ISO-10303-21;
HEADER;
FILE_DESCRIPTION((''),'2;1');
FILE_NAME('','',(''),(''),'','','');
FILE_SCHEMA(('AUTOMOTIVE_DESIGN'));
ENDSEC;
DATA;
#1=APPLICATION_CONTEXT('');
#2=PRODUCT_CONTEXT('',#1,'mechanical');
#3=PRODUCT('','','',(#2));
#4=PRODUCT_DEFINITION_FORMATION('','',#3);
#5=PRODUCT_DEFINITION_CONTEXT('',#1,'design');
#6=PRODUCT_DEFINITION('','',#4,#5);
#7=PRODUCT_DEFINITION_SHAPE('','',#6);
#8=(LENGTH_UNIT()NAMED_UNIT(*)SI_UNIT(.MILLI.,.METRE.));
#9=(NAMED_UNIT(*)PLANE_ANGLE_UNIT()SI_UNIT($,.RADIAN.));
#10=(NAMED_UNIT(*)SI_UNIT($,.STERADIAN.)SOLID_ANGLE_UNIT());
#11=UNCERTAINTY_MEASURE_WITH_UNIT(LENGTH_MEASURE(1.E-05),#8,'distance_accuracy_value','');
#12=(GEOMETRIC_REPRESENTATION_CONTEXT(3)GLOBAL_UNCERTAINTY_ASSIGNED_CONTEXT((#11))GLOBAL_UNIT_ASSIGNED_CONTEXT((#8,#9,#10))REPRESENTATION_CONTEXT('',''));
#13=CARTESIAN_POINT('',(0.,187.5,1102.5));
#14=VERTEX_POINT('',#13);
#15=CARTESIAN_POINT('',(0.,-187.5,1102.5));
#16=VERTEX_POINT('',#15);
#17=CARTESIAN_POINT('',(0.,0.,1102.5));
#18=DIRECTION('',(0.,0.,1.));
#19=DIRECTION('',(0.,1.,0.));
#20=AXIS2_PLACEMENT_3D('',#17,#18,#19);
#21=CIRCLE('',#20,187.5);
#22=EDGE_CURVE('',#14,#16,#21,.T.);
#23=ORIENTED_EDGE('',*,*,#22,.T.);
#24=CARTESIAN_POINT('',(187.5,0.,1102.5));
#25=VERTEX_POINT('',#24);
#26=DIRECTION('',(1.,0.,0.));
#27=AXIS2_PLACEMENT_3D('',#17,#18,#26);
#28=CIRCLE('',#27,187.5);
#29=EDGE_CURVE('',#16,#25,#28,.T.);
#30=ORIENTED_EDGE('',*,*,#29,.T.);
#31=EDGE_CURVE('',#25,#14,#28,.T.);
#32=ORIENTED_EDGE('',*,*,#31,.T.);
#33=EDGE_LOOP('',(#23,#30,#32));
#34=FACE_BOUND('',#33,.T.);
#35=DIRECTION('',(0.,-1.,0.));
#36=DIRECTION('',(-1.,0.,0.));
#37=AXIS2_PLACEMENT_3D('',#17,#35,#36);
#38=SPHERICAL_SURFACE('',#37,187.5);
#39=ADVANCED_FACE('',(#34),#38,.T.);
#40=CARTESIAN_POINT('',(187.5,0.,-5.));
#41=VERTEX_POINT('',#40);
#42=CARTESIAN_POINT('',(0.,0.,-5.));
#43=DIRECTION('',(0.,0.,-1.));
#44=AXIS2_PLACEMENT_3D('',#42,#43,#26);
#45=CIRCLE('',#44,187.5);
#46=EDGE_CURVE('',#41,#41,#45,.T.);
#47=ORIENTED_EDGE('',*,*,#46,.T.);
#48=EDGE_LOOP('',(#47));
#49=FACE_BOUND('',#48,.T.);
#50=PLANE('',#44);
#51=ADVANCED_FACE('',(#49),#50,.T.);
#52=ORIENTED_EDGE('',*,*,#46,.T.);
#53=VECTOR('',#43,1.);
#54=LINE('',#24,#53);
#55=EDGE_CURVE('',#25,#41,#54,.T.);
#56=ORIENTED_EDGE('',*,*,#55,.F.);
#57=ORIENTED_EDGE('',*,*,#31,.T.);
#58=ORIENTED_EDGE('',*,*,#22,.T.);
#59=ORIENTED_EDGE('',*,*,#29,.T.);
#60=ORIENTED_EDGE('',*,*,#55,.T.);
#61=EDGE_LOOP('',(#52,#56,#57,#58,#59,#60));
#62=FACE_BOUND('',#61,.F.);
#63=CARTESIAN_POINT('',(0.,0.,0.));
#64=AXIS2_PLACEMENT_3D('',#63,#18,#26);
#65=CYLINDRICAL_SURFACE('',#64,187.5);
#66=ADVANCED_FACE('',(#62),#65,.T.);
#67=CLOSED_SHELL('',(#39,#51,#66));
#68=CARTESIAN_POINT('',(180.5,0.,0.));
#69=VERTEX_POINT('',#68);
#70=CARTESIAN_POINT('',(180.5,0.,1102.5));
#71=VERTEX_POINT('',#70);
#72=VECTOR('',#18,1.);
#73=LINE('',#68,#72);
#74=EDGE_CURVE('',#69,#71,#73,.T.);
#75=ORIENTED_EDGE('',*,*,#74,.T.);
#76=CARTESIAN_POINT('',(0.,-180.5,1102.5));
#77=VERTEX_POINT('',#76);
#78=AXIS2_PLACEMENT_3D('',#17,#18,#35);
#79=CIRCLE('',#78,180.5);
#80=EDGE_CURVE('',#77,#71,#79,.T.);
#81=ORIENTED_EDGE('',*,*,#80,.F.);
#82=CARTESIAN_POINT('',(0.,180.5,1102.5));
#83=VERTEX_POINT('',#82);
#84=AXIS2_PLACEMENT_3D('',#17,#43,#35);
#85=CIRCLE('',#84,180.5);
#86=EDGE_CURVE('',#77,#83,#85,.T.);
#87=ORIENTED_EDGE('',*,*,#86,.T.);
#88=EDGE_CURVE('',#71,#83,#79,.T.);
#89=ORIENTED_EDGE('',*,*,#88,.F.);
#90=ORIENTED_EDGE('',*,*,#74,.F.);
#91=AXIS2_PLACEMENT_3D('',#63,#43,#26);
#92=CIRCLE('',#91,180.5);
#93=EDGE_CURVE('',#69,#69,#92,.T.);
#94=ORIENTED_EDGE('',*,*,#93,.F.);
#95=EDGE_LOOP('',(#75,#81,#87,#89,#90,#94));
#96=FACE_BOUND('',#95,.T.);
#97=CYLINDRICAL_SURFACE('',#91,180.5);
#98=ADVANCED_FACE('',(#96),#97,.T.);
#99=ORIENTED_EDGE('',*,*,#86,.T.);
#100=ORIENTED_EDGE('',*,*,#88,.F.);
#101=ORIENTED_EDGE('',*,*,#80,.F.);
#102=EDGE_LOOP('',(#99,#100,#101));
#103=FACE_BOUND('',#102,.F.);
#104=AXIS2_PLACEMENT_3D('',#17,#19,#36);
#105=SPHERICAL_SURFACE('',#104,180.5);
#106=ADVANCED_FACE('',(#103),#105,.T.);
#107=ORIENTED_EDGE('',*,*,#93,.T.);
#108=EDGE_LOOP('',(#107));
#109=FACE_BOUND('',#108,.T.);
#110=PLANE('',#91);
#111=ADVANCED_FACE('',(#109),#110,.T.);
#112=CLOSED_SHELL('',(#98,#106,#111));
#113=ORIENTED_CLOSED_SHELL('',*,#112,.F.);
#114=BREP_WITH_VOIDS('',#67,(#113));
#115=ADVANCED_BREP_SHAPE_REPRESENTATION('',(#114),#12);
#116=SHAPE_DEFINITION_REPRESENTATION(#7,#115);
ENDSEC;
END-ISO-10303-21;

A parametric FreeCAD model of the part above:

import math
import FreeCAD as App
import Part
import Sketcher
from FreeCAD import Vector
Q = App.Units.Quantity

doc = App.newDocument("Part")
body = doc.addObject("PartDesign::Body", "Body")

sketch1 = body.newObject("Sketcher::SketchObject", "Sketch")
sketch1.AttachmentSupport = (doc.getObject("XY_Plane"), [""])
sketch1.MapMode = "FlatFace"
sketch1.addGeometry(Part.Circle(Vector(0, 0, 0), Vector(0, 0, 1), 188), False)
sketch1.addConstraint(Sketcher.Constraint("Coincident", 0, 3, -1, 1))
sketch1.addConstraint(Sketcher.Constraint("Diameter", 0, Q("375 mm")))
pad1 = body.newObject("PartDesign::Pad", "Pad")
pad1.Profile = sketch1
pad1.Length = 1102.5

sketch2 = body.newObject("Sketcher::SketchObject", "Sketch001")
sketch2.AttachmentSupport = (doc.getObject("XY_Plane"), [""])
sketch2.MapMode = "FlatFace"
sketch2.AttachmentOffset = App.Placement(Vector(0, 0, 1102.5), App.Rotation())
sketch2.addGeometry(Part.LineSegment(Vector(0, 180, 0), Vector(0, 188, 0)), False)
sketch2.addGeometry(Part.ArcOfCircle(Part.Circle(Vector(0, 0, 0), Vector(0, 0, 1), 188), math.radians(90), math.radians(270)), False)
sketch2.addGeometry(Part.LineSegment(Vector(0, -188, 0), Vector(0, -180, 0)), False)
sketch2.addGeometry(Part.ArcOfCircle(Part.Circle(Vector(0, 0, 0), Vector(0, 0, 1), 180), math.radians(90), math.radians(270)), False)
sketch2.addConstraint(Sketcher.Constraint("Coincident", 0, 2, 1, 1))
sketch2.addConstraint(Sketcher.Constraint("Coincident", 1, 2, 2, 1))
sketch2.addConstraint(Sketcher.Constraint("Coincident", 2, 2, 3, 2))
sketch2.addConstraint(Sketcher.Constraint("Coincident", 3, 1, 0, 1))
sketch2.addConstraint(Sketcher.Constraint("Vertical", 0))
sketch2.addConstraint(Sketcher.Constraint("Vertical", 2))
sketch2.addConstraint(Sketcher.Constraint("Coincident", 1, 3, -1, 1))
sketch2.addConstraint(Sketcher.Constraint("Coincident", 3, 3, -1, 1))
sketch2.addConstraint(Sketcher.Constraint("PointOnObject", 0, 2, -2))
sketch2.addConstraint(Sketcher.Constraint("PointOnObject", 1, 2, -2))
sketch2.addConstraint(Sketcher.Constraint("Radius", 1, Q("187.5 mm")))
sketch2.addConstraint(Sketcher.Constraint("Radius", 3, Q("180.5 mm")))
revolution = body.newObject("PartDesign::Revolution", "Revolution")
revolution.Profile = sketch2
revolution.ReferenceAxis = (sketch2, ["V_Axis"])
revolution.Angle = 360

sketch3 = body.newObject("Sketcher::SketchObject", "Sketch002")
sketch3.AttachmentSupport = (doc.getObject("XY_Plane"), [""])
sketch3.MapMode = "FlatFace"
sketch3.addGeometry(Part.Circle(Vector(0, 0, 0), Vector(0, 0, 1), 180), False)
sketch3.addConstraint(Sketcher.Constraint("Coincident", 0, 3, -1, 1))
sketch3.addConstraint(Sketcher.Constraint("Diameter", 0, Q("361 mm")))
pocket1 = body.newObject("PartDesign::Pocket", "Pocket")
pocket1.Profile = sketch3
pocket1.Length = 1102.5
pocket1.Reversed = True

sketch4 = body.newObject("Sketcher::SketchObject", "Sketch003")
sketch4.AttachmentSupport = (doc.getObject("XY_Plane"), [""])
sketch4.MapMode = "FlatFace"
sketch4.addGeometry(Part.Circle(Vector(0, 0, 0), Vector(0, 0, 1), 188), False)
sketch4.addConstraint(Sketcher.Constraint("Coincident", 0, 3, -1, 1))
sketch4.addConstraint(Sketcher.Constraint("Diameter", 0, Q("375 mm")))
pad2 = body.newObject("PartDesign::Pad", "Pad001")
pad2.Profile = sketch4
pad2.Length = 5
pad2.Reversed = True

doc.recompute()
